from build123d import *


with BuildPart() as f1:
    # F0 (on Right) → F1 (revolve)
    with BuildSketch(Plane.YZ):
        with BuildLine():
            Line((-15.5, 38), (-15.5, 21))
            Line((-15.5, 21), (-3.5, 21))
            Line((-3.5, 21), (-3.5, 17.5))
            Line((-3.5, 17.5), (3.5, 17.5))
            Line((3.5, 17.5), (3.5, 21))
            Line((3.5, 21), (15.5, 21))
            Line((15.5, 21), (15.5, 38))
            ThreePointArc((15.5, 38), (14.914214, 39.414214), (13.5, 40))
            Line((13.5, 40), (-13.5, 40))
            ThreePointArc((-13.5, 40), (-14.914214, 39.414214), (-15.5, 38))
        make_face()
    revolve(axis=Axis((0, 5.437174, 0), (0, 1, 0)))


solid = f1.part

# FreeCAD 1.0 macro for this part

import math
import FreeCAD as App
import Part
import Sketcher
Q = App.Units.Quantity

doc = App.newDocument("Part")
params = doc.addObject("Spreadsheet::Sheet", "Params")
for row, (alias, value) in enumerate([
    ("sketch1_radius", "1.999999 mm"),
    ("sketch1_width", "12 mm"),
    ("sketch1_width2", "7 mm"),
    ("sketch1_height", "17 mm"),
    ("sketch1_height2", "3.5 mm"),
    ("revolution_angle", "360 deg"),
], start=1):
    params.set(f"A{row}", alias)
    params.set(f"B{row}", "=" + value)
    params.setAlias(f"B{row}", alias)

body = doc.addObject("PartDesign::Body", "Body")

# Sketch on YZ plane
sketch1 = body.newObject("Sketcher::SketchObject", "Sketch")
sketch1.AttachmentSupport = (doc.getObject("YZ_Plane"), [""])
sketch1.MapMode = "FlatFace"
sketch1.addGeometry(Part.LineSegment(App.Vector(-15.5, 38, 0), App.Vector(-15.5, 21, 0)), False)
sketch1.addGeometry(Part.LineSegment(App.Vector(-15.5, 21, 0), App.Vector(-3.5, 21, 0)), False)
sketch1.addGeometry(Part.LineSegment(App.Vector(-3.5, 21, 0), App.Vector(-3.5, 17.5, 0)), False)
sketch1.addGeometry(Part.LineSegment(App.Vector(-3.5, 17.5, 0), App.Vector(3.5, 17.5, 0)), False)
sketch1.addGeometry(Part.LineSegment(App.Vector(3.5, 17.5, 0), App.Vector(3.5, 21, 0)), False)
sketch1.addGeometry(Part.LineSegment(App.Vector(3.5, 21, 0), App.Vector(15.5, 21, 0)), False)
sketch1.addGeometry(Part.LineSegment(App.Vector(15.5, 21, 0), App.Vector(15.5, 38, 0)), False)
sketch1.addGeometry(Part.ArcOfCircle(Part.Circle(App.Vector(13.500001, 38.000001, 0), App.Vector(0, 0, 1), 1.999999), math.radians(-0.000043), math.radians(90.000043)), False)
sketch1.addGeometry(Part.LineSegment(App.Vector(13.5, 40, 0), App.Vector(-13.5, 40, 0)), False)
sketch1.addGeometry(Part.ArcOfCircle(Part.Circle(App.Vector(-13.500001, 38.000001, 0), App.Vector(0, 0, 1), 1.999999), math.radians(89.999957), math.radians(180.000043)), False)
sketch1.addConstraint(Sketcher.Constraint("Coincident", 0, 2, 1, 1))
sketch1.addConstraint(Sketcher.Constraint("Coincident", 1, 2, 2, 1))
sketch1.addConstraint(Sketcher.Constraint("Coincident", 2, 2, 3, 1))
sketch1.addConstraint(Sketcher.Constraint("Coincident", 3, 2, 4, 1))
sketch1.addConstraint(Sketcher.Constraint("Coincident", 4, 2, 5, 1))
sketch1.addConstraint(Sketcher.Constraint("Coincident", 5, 2, 6, 1))
sketch1.addConstraint(Sketcher.Constraint("Tangent", 6, 2, 7, 1))
sketch1.addConstraint(Sketcher.Constraint("Tangent", 7, 2, 8, 1))
sketch1.addConstraint(Sketcher.Constraint("Tangent", 8, 2, 9, 1))
sketch1.addConstraint(Sketcher.Constraint("Tangent", 9, 2, 0, 1))
sketch1.addConstraint(Sketcher.Constraint("Vertical", 0))
sketch1.addConstraint(Sketcher.Constraint("Horizontal", 1))
sketch1.addConstraint(Sketcher.Constraint("Vertical", 2))
sketch1.addConstraint(Sketcher.Constraint("Horizontal", 3))
sketch1.addConstraint(Sketcher.Constraint("Vertical", 4))
sketch1.addConstraint(Sketcher.Constraint("Horizontal", 5))
sketch1.addConstraint(Sketcher.Constraint("Vertical", 6))
sketch1.addConstraint(Sketcher.Constraint("Horizontal", 8))
sketch1.addConstraint(Sketcher.Constraint("Equal", 7, 9))
sketch1.addConstraint(Sketcher.Constraint("Symmetric", 1, 2, 4, 2, -2))
sketch1.addConstraint(Sketcher.Constraint("Equal", 1, 5))
sketch1.addConstraint(Sketcher.Constraint("Radius", 7, Q("1.999999 mm")))
sketch1.addConstraint(Sketcher.Constraint("DistanceX", 1, 1, 1, 2, Q("12 mm")))
sketch1.addConstraint(Sketcher.Constraint("DistanceX", 3, 1, 3, 2, Q("7 mm")))
sketch1.addConstraint(Sketcher.Constraint("DistanceY", 0, 2, 0, 1, Q("17 mm")))
sketch1.addConstraint(Sketcher.Constraint("DistanceY", 2, 2, 2, 1, Q("3.5 mm")))
sketch1.addConstraint(Sketcher.Constraint("DistanceY", -1, 1, 7, 3, Q("38.000001 mm")))
sketch1.setExpression("Constraints[21]", "Params.sketch1_radius")
sketch1.setExpression("Constraints[22]", "Params.sketch1_width")
sketch1.setExpression("Constraints[23]", "Params.sketch1_width2")
sketch1.setExpression("Constraints[24]", "Params.sketch1_height")
sketch1.setExpression("Constraints[25]", "Params.sketch1_height2")
revolution = body.newObject("PartDesign::Revolution", "Revolution")
revolution.Profile = sketch1
revolution.ReferenceAxis = (sketch1, ["H_Axis"])
revolution.setExpression("Angle", "Params.revolution_angle")

doc.recompute()
